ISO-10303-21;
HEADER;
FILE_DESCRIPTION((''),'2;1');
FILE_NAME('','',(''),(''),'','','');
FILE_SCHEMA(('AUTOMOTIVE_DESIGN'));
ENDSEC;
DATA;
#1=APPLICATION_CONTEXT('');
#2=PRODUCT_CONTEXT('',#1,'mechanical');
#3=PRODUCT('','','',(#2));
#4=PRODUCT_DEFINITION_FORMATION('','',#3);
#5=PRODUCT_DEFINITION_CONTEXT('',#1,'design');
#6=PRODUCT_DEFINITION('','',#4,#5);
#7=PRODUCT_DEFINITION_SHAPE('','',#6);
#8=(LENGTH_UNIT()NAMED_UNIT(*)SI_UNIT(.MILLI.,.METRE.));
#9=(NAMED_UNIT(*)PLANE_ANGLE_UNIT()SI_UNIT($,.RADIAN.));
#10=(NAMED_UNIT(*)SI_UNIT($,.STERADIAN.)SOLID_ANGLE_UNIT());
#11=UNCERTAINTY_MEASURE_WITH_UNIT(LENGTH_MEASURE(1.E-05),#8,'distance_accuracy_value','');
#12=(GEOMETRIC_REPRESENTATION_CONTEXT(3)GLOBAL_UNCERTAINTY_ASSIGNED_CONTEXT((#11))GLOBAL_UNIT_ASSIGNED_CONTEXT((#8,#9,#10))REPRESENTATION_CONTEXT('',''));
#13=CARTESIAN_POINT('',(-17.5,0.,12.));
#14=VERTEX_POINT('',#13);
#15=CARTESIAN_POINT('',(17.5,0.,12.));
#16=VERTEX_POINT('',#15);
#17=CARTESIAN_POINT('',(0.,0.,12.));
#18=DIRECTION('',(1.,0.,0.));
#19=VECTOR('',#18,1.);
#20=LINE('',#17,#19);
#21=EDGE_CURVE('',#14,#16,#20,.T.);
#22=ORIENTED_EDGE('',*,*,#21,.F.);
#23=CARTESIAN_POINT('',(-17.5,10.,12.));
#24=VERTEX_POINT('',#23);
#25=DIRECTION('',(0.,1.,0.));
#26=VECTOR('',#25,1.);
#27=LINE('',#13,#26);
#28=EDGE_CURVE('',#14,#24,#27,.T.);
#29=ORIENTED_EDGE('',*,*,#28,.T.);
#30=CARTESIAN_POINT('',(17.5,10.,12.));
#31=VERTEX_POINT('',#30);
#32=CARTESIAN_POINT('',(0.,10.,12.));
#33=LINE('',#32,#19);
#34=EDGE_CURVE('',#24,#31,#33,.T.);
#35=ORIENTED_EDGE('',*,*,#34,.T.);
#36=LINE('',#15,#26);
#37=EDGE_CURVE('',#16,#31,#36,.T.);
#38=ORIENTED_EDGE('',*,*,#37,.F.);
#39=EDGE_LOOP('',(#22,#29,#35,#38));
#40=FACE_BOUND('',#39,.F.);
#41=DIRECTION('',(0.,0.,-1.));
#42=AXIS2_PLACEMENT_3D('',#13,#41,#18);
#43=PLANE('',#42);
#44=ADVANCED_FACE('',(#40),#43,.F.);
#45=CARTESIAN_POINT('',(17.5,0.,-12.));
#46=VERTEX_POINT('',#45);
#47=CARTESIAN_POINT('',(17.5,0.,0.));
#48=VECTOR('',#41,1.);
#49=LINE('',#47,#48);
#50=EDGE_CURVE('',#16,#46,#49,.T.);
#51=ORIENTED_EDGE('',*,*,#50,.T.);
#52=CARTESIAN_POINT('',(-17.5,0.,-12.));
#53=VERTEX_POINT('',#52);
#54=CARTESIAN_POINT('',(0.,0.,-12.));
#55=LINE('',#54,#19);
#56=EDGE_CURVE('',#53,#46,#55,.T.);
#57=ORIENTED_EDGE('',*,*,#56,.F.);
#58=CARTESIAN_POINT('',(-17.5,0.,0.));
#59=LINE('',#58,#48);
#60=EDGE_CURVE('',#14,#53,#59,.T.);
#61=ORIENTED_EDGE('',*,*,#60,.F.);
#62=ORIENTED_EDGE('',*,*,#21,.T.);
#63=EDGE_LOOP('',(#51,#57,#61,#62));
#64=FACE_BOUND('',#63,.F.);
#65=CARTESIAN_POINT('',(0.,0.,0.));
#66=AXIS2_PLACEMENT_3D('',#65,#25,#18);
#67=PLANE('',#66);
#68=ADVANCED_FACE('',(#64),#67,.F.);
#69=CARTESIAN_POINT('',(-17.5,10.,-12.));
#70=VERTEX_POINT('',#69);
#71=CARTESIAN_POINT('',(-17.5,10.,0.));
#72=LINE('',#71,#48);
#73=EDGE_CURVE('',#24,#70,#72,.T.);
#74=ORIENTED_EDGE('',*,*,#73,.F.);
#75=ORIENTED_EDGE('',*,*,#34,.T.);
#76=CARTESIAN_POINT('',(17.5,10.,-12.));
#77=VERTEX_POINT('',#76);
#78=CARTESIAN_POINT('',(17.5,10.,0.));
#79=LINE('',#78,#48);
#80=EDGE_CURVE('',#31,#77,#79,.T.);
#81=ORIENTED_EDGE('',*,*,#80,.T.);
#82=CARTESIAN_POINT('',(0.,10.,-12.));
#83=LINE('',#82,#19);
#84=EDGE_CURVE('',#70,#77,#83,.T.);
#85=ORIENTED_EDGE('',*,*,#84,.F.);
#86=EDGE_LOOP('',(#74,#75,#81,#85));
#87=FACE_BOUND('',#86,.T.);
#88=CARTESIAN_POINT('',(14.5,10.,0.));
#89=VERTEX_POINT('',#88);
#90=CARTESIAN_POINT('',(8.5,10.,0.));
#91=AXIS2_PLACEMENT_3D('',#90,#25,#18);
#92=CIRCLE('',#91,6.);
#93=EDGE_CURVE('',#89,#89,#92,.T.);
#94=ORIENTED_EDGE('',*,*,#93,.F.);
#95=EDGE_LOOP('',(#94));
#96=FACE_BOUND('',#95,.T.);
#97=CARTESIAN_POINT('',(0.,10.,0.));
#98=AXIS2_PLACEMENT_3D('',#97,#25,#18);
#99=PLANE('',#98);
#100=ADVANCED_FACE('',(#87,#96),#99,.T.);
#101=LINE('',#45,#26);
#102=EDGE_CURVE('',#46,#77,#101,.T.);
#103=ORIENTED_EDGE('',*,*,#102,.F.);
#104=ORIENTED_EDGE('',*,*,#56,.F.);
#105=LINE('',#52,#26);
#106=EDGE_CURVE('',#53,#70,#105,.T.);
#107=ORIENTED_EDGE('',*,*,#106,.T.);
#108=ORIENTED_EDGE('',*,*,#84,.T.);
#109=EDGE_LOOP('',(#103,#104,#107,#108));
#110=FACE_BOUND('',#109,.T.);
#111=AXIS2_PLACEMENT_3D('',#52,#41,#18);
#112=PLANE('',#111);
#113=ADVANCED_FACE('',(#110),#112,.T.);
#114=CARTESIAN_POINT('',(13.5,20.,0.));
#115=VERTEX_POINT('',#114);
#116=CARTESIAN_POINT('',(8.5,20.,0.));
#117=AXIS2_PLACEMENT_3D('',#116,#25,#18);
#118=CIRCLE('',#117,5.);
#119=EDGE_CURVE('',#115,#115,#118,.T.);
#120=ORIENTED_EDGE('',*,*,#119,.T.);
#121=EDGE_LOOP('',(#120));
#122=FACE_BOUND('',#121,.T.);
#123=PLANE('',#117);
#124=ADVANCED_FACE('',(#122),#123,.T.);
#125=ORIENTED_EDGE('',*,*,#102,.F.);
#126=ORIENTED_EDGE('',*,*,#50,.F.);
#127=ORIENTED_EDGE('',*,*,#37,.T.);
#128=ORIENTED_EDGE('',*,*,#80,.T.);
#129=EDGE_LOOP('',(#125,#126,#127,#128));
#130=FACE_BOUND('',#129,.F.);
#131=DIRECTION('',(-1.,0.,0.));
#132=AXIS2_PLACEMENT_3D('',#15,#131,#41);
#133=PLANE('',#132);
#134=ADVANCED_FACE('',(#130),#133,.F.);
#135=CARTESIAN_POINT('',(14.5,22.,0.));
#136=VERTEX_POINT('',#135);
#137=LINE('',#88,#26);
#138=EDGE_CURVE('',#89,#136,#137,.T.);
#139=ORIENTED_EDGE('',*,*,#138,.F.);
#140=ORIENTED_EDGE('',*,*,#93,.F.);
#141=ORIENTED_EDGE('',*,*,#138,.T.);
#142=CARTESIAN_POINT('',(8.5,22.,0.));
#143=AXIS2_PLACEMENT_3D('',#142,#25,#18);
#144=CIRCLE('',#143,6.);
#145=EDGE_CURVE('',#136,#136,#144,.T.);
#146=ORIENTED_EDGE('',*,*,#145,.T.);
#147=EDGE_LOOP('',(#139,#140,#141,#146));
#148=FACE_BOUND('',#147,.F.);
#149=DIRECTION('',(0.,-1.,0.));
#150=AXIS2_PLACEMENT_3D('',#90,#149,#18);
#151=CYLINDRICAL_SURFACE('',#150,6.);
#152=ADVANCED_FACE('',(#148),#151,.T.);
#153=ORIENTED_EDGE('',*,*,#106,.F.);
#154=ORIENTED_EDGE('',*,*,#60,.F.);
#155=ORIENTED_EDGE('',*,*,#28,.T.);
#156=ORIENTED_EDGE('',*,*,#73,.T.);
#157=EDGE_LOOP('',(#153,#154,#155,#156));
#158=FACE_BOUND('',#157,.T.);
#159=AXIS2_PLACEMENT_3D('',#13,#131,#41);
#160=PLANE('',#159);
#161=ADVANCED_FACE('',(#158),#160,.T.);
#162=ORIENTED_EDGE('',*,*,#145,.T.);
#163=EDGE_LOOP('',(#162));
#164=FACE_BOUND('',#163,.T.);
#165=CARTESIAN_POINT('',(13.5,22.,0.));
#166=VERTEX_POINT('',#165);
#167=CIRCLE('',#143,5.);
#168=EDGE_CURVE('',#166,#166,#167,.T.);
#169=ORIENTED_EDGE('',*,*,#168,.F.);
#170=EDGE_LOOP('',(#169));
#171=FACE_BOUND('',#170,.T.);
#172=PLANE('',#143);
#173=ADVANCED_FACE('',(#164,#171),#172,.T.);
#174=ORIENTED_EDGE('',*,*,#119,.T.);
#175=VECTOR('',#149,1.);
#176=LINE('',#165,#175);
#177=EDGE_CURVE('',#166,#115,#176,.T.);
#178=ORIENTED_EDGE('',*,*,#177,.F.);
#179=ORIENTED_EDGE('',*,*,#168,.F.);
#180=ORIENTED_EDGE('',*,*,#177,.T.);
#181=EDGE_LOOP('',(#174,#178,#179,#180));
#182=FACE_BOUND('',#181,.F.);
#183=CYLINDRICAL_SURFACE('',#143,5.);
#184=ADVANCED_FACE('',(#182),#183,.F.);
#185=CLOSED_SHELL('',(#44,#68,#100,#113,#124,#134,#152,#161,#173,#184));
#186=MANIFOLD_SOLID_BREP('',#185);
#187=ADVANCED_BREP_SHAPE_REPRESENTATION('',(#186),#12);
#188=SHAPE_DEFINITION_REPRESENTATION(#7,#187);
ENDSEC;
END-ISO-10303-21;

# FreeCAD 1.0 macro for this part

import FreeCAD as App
import Part
import Sketcher
from FreeCAD import Vector

doc = App.newDocument("Part")
params = doc.addObject("Spreadsheet::Sheet", "Params")
for row, (alias, value) in enumerate([
    ("sketch1_width", "35 mm"),
    ("sketch1_height", "24 mm"),
    ("pad1_length", "10 mm"),
    ("sketch2_diameter", "12 mm"),
    ("pad2_length", "12 mm"),
    ("sketch3_diameter", "10 mm"),
    ("pocket1_length", "2 mm"),
], start=1):
    params.set(f"A{row}", alias)
    params.set(f"B{row}", "=" + value)
    params.setAlias(f"B{row}", alias)

body = doc.addObject("PartDesign::Body", "Body")

# Sketch on XZ plane
sketch1 = doc.addObject("Sketcher::SketchObject", "Sketch")
body.addObject(sketch1)
sketch1.AttachmentSupport = (doc.XZ_Plane, [""])
sketch1.MapMode = "FlatFace"
sketch1.addGeometry([
    Part.LineSegment(Vector(-18, -12, 0), Vector(-18, 12, 0)),
    Part.LineSegment(Vector(-18, 12, 0), Vector(18, 12, 0)),
    Part.LineSegment(Vector(18, 12, 0), Vector(18, -12, 0)),
    Part.LineSegment(Vector(18, -12, 0), Vector(-18, -12, 0)),
], False)
sketch1.addConstraint([
    Sketcher.Constraint("Coincident", 0, 2, 1, 1),
    Sketcher.Constraint("Coincident", 1, 2, 2, 1),
    Sketcher.Constraint("Coincident", 2, 2, 3, 1),
    Sketcher.Constraint("Coincident", 3, 2, 0, 1),
    Sketcher.Constraint("Vertical", 0),
    Sketcher.Constraint("Horizontal", 1),
    Sketcher.Constraint("Vertical", 2),
    Sketcher.Constraint("Horizontal", 3),
    Sketcher.Constraint("Symmetric", 0, 2, 2, 2, -1, 1),
    Sketcher.Constraint("DistanceX", 1, 1, 1, 2, 35.0),
    Sketcher.Constraint("DistanceY", 0, 1, 0, 2, 24.0),
])
sketch1.setExpression("Constraints[9]", "Params.sketch1_width")
sketch1.setExpression("Constraints[10]", "Params.sketch1_height")
pad1 = doc.addObject("PartDesign::Pad", "Pad")
body.addObject(pad1)
pad1.Profile = sketch1
pad1.setExpression("Length", "Params.pad1_length")
pad1.Reversed = True

# Sketch on XZ plane
sketch2 = doc.addObject("Sketcher::SketchObject", "Sketch001")
body.addObject(sketch2)
sketch2.AttachmentSupport = (doc.XZ_Plane, [""])
sketch2.MapMode = "FlatFace"
sketch2.AttachmentOffset = App.Placement(Vector(0, 0, -10), App.Rotation())
sketch2.addGeometry(Part.Circle(Vector(8, 0, 0), Vector(0, 0, 1), 6), False)
sketch2.addConstraint([
    Sketcher.Constraint("PointOnObject", 0, 3, -1),
    Sketcher.Constraint("Diameter", 0, 12.0),
    Sketcher.Constraint("DistanceX", -1, 1, 0, 3, 8.5),
])
sketch2.setExpression("Constraints[1]", "Params.sketch2_diameter")
pad2 = doc.addObject("PartDesign::Pad", "Pad001")
body.addObject(pad2)
pad2.Profile = sketch2
pad2.setExpression("Length", "Params.pad2_length")
pad2.Reversed = True

# Sketch on XZ plane
sketch3 = doc.addObject("Sketcher::SketchObject", "Sketch002")
body.addObject(sketch3)
sketch3.AttachmentSupport = (doc.XZ_Plane, [""])
sketch3.MapMode = "FlatFace"
sketch3.AttachmentOffset = App.Placement(Vector(0, 0, -22), App.Rotation())
sketch3.addGeometry(Part.Circle(Vector(8, 0, 0), Vector(0, 0, 1), 5), False)
sketch3.addConstraint([
    Sketcher.Constraint("PointOnObject", 0, 3, -1),
    Sketcher.Constraint("Diameter", 0, 10.0),
    Sketcher.Constraint("DistanceX", -1, 1, 0, 3, 8.5),
])
sketch3.setExpression("Constraints[1]", "Params.sketch3_diameter")
pocket1 = doc.addObject("PartDesign::Pocket", "Pocket")
body.addObject(pocket1)
pocket1.Profile = sketch3
pocket1.setExpression("Length", "Params.pocket1_length")
pocket1.Reversed = True

doc.recompute()
